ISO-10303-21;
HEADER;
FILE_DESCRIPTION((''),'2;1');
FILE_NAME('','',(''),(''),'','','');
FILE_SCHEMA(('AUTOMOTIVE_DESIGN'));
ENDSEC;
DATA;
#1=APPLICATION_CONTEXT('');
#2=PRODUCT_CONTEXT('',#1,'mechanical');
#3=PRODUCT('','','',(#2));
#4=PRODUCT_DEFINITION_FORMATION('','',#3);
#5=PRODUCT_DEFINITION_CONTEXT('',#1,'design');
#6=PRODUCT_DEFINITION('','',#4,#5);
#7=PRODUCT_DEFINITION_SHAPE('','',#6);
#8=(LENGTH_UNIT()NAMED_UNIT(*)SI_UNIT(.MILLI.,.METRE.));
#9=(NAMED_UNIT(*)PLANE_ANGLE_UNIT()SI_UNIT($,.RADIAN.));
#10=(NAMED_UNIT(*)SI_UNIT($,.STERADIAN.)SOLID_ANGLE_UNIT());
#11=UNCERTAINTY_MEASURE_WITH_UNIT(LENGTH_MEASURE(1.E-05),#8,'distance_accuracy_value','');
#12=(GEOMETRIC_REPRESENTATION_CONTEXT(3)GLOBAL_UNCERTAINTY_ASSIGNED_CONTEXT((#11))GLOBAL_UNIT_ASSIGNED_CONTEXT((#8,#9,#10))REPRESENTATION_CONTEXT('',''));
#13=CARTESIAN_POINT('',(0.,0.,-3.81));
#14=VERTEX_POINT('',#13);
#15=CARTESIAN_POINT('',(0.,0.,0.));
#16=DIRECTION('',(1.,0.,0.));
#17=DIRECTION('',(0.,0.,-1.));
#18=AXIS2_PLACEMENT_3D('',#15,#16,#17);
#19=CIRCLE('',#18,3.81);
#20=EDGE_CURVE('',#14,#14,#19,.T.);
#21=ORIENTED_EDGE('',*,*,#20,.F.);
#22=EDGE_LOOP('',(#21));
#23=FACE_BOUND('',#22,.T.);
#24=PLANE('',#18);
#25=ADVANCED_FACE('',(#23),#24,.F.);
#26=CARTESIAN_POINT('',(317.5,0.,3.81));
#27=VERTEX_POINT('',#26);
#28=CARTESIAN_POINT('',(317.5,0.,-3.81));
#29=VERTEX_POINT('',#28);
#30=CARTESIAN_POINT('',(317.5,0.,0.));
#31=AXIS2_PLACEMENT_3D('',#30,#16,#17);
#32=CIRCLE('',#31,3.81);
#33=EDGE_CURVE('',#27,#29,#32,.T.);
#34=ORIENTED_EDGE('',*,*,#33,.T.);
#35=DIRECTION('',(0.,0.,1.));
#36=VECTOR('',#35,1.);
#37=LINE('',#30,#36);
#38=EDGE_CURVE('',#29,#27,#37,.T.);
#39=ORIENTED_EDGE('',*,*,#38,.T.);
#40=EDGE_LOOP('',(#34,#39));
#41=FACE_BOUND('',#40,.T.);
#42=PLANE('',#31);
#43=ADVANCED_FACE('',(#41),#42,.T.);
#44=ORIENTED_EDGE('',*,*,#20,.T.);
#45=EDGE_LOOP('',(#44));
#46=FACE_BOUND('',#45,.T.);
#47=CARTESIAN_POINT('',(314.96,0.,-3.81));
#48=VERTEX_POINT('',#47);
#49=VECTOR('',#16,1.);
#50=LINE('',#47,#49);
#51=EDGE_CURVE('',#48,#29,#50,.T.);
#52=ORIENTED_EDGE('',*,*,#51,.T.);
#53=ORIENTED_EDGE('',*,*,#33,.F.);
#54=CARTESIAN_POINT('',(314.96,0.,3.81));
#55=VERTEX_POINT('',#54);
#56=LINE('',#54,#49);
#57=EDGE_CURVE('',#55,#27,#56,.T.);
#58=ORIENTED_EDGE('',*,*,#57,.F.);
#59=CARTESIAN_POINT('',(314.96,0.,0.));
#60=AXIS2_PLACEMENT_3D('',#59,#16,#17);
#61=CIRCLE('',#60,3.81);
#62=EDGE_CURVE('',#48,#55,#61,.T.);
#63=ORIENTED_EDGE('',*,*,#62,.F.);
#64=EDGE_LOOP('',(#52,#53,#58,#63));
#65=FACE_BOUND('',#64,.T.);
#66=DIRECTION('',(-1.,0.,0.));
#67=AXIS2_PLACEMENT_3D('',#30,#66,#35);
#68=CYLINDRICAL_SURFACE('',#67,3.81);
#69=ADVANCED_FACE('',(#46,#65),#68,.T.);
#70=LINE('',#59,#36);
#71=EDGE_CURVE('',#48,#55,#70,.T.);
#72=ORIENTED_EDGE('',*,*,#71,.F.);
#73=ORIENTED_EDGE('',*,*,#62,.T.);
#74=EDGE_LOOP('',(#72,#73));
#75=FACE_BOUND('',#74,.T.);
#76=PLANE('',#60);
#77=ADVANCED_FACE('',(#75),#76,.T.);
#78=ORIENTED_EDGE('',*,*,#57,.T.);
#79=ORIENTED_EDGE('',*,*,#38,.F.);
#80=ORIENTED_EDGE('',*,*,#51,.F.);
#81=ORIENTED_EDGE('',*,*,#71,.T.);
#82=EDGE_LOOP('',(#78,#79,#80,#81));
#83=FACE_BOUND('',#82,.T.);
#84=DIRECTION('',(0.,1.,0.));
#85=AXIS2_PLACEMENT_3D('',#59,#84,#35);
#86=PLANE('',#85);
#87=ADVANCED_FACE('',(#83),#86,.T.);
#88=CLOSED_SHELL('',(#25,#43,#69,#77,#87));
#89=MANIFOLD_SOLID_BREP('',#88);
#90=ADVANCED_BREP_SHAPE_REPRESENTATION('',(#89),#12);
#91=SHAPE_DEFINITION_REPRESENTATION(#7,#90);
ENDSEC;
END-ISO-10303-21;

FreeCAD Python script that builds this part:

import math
import FreeCAD as App
import Part
import Sketcher
Q = App.Units.Quantity

doc = App.newDocument("Part")
body = doc.addObject("PartDesign::Body", "Body")

# Sketch on YZ plane
sketch1 = body.newObject("Sketcher::SketchObject", "Sketch")
sketch1.AttachmentSupport = (doc.getObject("YZ_Plane"), [""])
sketch1.MapMode = "FlatFace"
sketch1.addGeometry(Part.Circle(App.Vector(0, 0, 0), App.Vector(0, 0, 1), 3.8), False)
sketch1.addConstraint(Sketcher.Constraint("Coincident", 0, 3, -1, 1))
sketch1.addConstraint(Sketcher.Constraint("Diameter", 0, Q("0.3 in")))
pad1 = body.newObject("PartDesign::Pad", "Pad")
pad1.Profile = sketch1
pad1.Length = Q("12.5 in")

# Sketch on YZ plane
sketch2 = body.newObject("Sketcher::SketchObject", "Sketch001")
sketch2.AttachmentSupport = (doc.getObject("YZ_Plane"), [""])
sketch2.MapMode = "FlatFace"
sketch2.AttachmentOffset = App.Placement(App.Vector(0, 0, 12.5 * 25.4), App.Rotation())
sketch2.addGeometry(Part.LineSegment(App.Vector(0, 3.8, 0), App.Vector(0, -3.8, 0)), False)
sketch2.addGeometry(Part.ArcOfCircle(Part.Circle(App.Vector(0, 0, 0), App.Vector(0, 0, 1), 3.8), math.radians(-90), math.radians(90)), False)
sketch2.addConstraint(Sketcher.Constraint("Coincident", 0, 1, 1, 2))
sketch2.addConstraint(Sketcher.Constraint("Coincident", 1, 1, 0, 2))
sketch2.addConstraint(Sketcher.Constraint("Vertical", 0))
sketch2.addConstraint(Sketcher.Constraint("Coincident", 1, 3, -1, 1))
sketch2.addConstraint(Sketcher.Constraint("PointOnObject", 0, 1, -2))
sketch2.addConstraint(Sketcher.Constraint("Radius", 1, Q("0.15 in")))
pocket1 = body.newObject("PartDesign::Pocket", "Pocket")
pocket1.Profile = sketch2
pocket1.Length = Q("0.1 in")

doc.recompute()
